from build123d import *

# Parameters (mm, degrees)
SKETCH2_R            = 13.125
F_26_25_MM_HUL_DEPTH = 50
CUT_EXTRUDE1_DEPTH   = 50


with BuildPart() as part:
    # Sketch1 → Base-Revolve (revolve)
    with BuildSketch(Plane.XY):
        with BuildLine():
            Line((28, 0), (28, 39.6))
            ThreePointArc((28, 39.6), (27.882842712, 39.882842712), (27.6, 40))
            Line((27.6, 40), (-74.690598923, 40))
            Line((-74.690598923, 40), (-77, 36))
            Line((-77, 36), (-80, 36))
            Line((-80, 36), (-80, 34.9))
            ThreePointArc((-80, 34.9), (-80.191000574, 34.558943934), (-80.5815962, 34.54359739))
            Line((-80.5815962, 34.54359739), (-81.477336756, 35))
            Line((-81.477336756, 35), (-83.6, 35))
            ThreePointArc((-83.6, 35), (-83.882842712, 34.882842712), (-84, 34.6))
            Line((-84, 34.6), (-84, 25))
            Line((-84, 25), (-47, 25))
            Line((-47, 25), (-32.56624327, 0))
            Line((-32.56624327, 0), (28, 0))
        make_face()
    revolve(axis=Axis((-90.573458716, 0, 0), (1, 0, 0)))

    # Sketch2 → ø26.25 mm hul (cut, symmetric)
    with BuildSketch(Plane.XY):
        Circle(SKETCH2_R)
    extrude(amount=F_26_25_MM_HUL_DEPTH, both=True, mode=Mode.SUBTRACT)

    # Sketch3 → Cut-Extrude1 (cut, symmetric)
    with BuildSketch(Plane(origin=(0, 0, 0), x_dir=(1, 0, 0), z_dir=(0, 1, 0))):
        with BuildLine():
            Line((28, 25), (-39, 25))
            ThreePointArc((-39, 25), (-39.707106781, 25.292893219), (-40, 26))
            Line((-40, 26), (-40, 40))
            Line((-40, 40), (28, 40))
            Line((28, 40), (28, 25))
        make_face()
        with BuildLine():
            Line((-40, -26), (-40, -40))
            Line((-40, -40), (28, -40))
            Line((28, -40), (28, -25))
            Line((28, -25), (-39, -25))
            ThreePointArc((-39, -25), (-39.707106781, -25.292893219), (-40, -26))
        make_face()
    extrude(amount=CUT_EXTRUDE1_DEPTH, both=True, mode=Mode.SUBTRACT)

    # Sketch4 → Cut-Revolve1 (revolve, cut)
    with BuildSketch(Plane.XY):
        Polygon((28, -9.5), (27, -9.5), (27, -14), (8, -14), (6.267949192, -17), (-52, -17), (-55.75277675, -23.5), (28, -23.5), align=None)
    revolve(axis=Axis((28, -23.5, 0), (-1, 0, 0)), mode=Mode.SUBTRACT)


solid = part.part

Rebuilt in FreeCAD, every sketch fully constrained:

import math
import FreeCAD as App
import Part
import Sketcher

V = App.Vector
Q = App.Units.Quantity


def add_polygon(sketch, points):
    """Adds a closed chain of lines whose ends are joined by coincident constraints."""
    first, n = sketch.GeometryCount, len(points)
    for a, b in zip(points, points[1:] + points[:1]):
        sketch.addGeometry(Part.LineSegment(App.Vector(*a, 0), App.Vector(*b, 0)), False)
    for i in range(n):
        sketch.addConstraint(Sketcher.Constraint("Coincident", first + i, 2, first + (i + 1) % n, 1))

doc = App.newDocument("Part")
body = doc.addObject("PartDesign::Body", "Body")

# Sketch on XY plane
sketch1 = body.newObject("Sketcher::SketchObject", "Sketch")
sketch1.AttachmentSupport = (doc.getObject("XY_Plane"), [""])
sketch1.MapMode = "FlatFace"
sketch1.addGeometry([
    Part.LineSegment(V(28, 0, 0), V(28, 39.6, 0)),  # 0
    Part.ArcOfCircle(Part.Circle(V(27.6, 39.6, 0), V(0, 0, 1), 0.4), math.radians(0), math.radians(90)),  # 1
    Part.LineSegment(V(27.6, 40, 0), V(-74.69, 40, 0)),  # 2
    Part.LineSegment(V(-74.69, 40, 0), V(-77, 36, 0)),  # 3
    Part.LineSegment(V(-77, 36, 0), V(-80, 36, 0)),  # 4
    Part.LineSegment(V(-80, 36, 0), V(-80, 34.9, 0)),  # 5
    Part.ArcOfCircle(Part.Circle(V(-80.4, 34.9, 0), V(0, 0, 1), 0.4), math.radians(-117), math.radians(0)),  # 6
    Part.LineSegment(V(-80.58, 34.54, 0), V(-81.48, 35, 0)),  # 7
    Part.LineSegment(V(-81.48, 35, 0), V(-83.6, 35, 0)),  # 8
    Part.ArcOfCircle(Part.Circle(V(-83.6, 34.6, 0), V(0, 0, 1), 0.4), math.radians(90), math.radians(180)),  # 9
    Part.LineSegment(V(-84, 34.6, 0), V(-84, 25, 0)),  # 10
    Part.LineSegment(V(-84, 25, 0), V(-47, 25, 0)),  # 11
    Part.LineSegment(V(-47, 25, 0), V(-32.57, 0, 0)),  # 12
    Part.LineSegment(V(-32.57, 0, 0), V(28, 0, 0)),  # 13
], False)
sketch1.addConstraint([
    Sketcher.Constraint("Tangent", 0, 2, 1, 1),
    Sketcher.Constraint("Tangent", 1, 2, 2, 1),
    Sketcher.Constraint("Coincident", 2, 2, 3, 1),
    Sketcher.Constraint("Coincident", 3, 2, 4, 1),
    Sketcher.Constraint("Coincident", 4, 2, 5, 1),
    Sketcher.Constraint("Tangent", 5, 2, 6, 2),
    Sketcher.Constraint("Tangent", 6, 1, 7, 1),
    Sketcher.Constraint("Coincident", 7, 2, 8, 1),
    Sketcher.Constraint("Tangent", 8, 2, 9, 1),
    Sketcher.Constraint("Tangent", 9, 2, 10, 1),
    Sketcher.Constraint("Coincident", 10, 2, 11, 1),
    Sketcher.Constraint("Coincident", 11, 2, 12, 1),
    Sketcher.Constraint("Coincident", 12, 2, 13, 1),
    Sketcher.Constraint("Coincident", 13, 2, 0, 1),
    Sketcher.Constraint("Vertical", 0),
    Sketcher.Constraint("Horizontal", 2),
    Sketcher.Constraint("Horizontal", 4),
    Sketcher.Constraint("Vertical", 5),
    Sketcher.Constraint("Horizontal", 8),
    Sketcher.Constraint("Vertical", 10),
    Sketcher.Constraint("Horizontal", 11),
    Sketcher.Constraint("Horizontal", 13),
    Sketcher.Constraint("Equal", 1, 6),
    Sketcher.Constraint("Equal", 6, 9),
    Sketcher.Constraint("PointOnObject", 12, 2, -1),
    Sketcher.Constraint("Radius", 1, Q("0.4 mm")),
    Sketcher.Constraint("DistanceX", 4, 2, 4, 1, Q("3 mm")),
    Sketcher.Constraint("DistanceX", 11, 1, 11, 2, Q("37 mm")),
    Sketcher.Constraint("Angle", 3, Q("-120 deg")),
    Sketcher.Constraint("Angle", 7, Q("153 deg")),
    Sketcher.Constraint("Angle", 12, Q("-60 deg")),
    Sketcher.Constraint("DistanceY", 0, 1, 0, 2, Q("39.6 mm")),
    Sketcher.Constraint("DistanceY", 5, 2, 5, 1, Q("1.1 mm")),
    Sketcher.Constraint("DistanceY", 10, 2, 10, 1, Q("9.6 mm")),
    Sketcher.Constraint("DistanceX", -1, 1, 0, 2, Q("28 mm")),
    Sketcher.Constraint("DistanceX", 3, 2, -1, 1, Q("77 mm")),
    Sketcher.Constraint("DistanceY", -1, 1, 3, 2, Q("36 mm")),
    Sketcher.Constraint("DistanceY", -1, 1, 7, 2, Q("35 mm")),
    Sketcher.Constraint("DistanceX", 9, 2, -1, 1, Q("84 mm")),
])
revolution = body.newObject("PartDesign::Revolution", "Revolution")
revolution.Profile = sketch1
revolution.ReferenceAxis = (sketch1, ["H_Axis"])
revolution.Angle = 360

# Sketch on XY plane
sketch2 = body.newObject("Sketcher::SketchObject", "Sketch001")
sketch2.AttachmentSupport = (doc.getObject("XY_Plane"), [""])
sketch2.MapMode = "FlatFace"
sketch2.addGeometry(Part.Circle(V(0, 0, 0), V(0, 0, 1), 13), False)
sketch2.addConstraint([
    Sketcher.Constraint("Coincident", 0, 3, -1, 1),
    Sketcher.Constraint("Diameter", 0, Q("26.25 mm")),
])
pocket1 = body.newObject("PartDesign::Pocket", "Pocket")
pocket1.Profile = sketch2
pocket1.Length = 100
pocket1.Midplane = True

# Sketch on XZ plane
sketch3 = body.newObject("Sketcher::SketchObject", "Sketch002")
sketch3.AttachmentSupport = (doc.getObject("XZ_Plane"), [""])
sketch3.MapMode = "FlatFace"
sketch3.addGeometry([
    Part.LineSegment(V(-39, -25, 0), V(28, -25, 0)),  # 0
    Part.LineSegment(V(28, -25, 0), V(28, -40, 0)),  # 1
    Part.LineSegment(V(28, -40, 0), V(-40, -40, 0)),  # 2
    Part.LineSegment(V(-40, -40, 0), V(-40, -26, 0)),  # 3
    Part.ArcOfCircle(Part.Circle(V(-39, -26, 0), V(0, 0, 1), 1), math.radians(90), math.radians(180)),  # 4
    Part.LineSegment(V(-40, 26, 0), V(-40, 40, 0)),  # 5
    Part.LineSegment(V(-40, 40, 0), V(28, 40, 0)),  # 6
    Part.LineSegment(V(28, 40, 0), V(28, 25, 0)),  # 7
    Part.LineSegment(V(28, 25, 0), V(-39, 25, 0)),  # 8
    Part.ArcOfCircle(Part.Circle(V(-39, 26, 0), V(0, 0, 1), 1), math.radians(-180), math.radians(-90)),  # 9
], False)
sketch3.addConstraint([
    Sketcher.Constraint("Coincident", 0, 2, 1, 1),
    Sketcher.Constraint("Coincident", 1, 2, 2, 1),
    Sketcher.Constraint("Coincident", 2, 2, 3, 1),
    Sketcher.Constraint("Tangent", 3, 2, 4, 2),
    Sketcher.Constraint("Tangent", 4, 1, 0, 1),
    Sketcher.Constraint("Coincident", 5, 2, 6, 1),
    Sketcher.Constraint("Coincident", 6, 2, 7, 1),
    Sketcher.Constraint("Coincident", 7, 2, 8, 1),
    Sketcher.Constraint("Tangent", 8, 2, 9, 2),
    Sketcher.Constraint("Tangent", 9, 1, 5, 1),
    Sketcher.Constraint("Horizontal", 0),
    Sketcher.Constraint("Vertical", 1),
    Sketcher.Constraint("Horizontal", 2),
    Sketcher.Constraint("Vertical", 3),
    Sketcher.Constraint("Vertical", 5),
    Sketcher.Constraint("Horizontal", 6),
    Sketcher.Constraint("Vertical", 7),
    Sketcher.Constraint("Horizontal", 8),
    Sketcher.Constraint("Equal", 4, 9),
    Sketcher.Constraint("Symmetric", 4, 3, 9, 3, -1),
    Sketcher.Constraint("Symmetric", 1, 2, 6, 2, -1),
    Sketcher.Constraint("Radius", 4, Q("1 mm")),
    Sketcher.Constraint("DistanceX", 0, 1, 0, 2, Q("67 mm")),
    Sketcher.Constraint("DistanceY", 1, 2, 1, 1, Q("15 mm")),
    Sketcher.Constraint("DistanceX", 4, 3, -1, 1, Q("39 mm")),
    Sketcher.Constraint("DistanceY", 4, 3, -1, 1, Q("26 mm")),
])
pocket2 = body.newObject("PartDesign::Pocket", "Pocket001")
pocket2.Profile = sketch3
pocket2.Length = 100
pocket2.Midplane = True

# Sketch on XY plane
sketch4 = body.newObject("Sketcher::SketchObject", "Sketch003")
sketch4.AttachmentSupport = (doc.getObject("XY_Plane"), [""])
sketch4.MapMode = "FlatFace"
add_polygon(sketch4, [(28, -9.5), (27, -9.5), (27, -14), (8, -14), (6.3, -17), (-52, -17), (-55.8, -23.5), (28, -23.5)])  # lines 0-7
sketch4.addGeometry(Part.LineSegment(V(28, -23.5, 0), V(-55.8, -23.5, 0)), True)  # axis
sketch4.addConstraint([
    Sketcher.Constraint("Horizontal", 0),
    Sketcher.Constraint("Vertical", 1),
    Sketcher.Constraint("Horizontal", 2),
    Sketcher.Constraint("Horizontal", 4),
    Sketcher.Constraint("Horizontal", 6),
    Sketcher.Constraint("Vertical", 7),
    Sketcher.Constraint("Horizontal", 8),
    Sketcher.Constraint("Coincident", 8, 1, 6, 2),
    Sketcher.Constraint("Parallel", 3, 5),
    Sketcher.Constraint("Equal", 6, 8),
    Sketcher.Constraint("DistanceX", 0, 2, 0, 1, Q("1 mm")),
    Sketcher.Constraint("DistanceX", 2, 2, 2, 1, Q("19 mm")),
    Sketcher.Constraint("DistanceY", 7, 1, 7, 2, Q("14 mm")),
    Sketcher.Constraint("Angle", 3, Q("-120 deg")),
    Sketcher.Constraint("DistanceY", 1, 2, 1, 1, Q("4.5 mm")),
    Sketcher.Constraint("DistanceX", -1, 1, 0, 2, Q("27 mm")),
    Sketcher.Constraint("DistanceY", 1, 2, -1, 1, Q("14 mm")),
    Sketcher.Constraint("DistanceY", 3, 2, -1, 1, Q("17 mm")),
    Sketcher.Constraint("DistanceX", 4, 2, -1, 1, Q("52 mm")),
])
groove = body.newObject("PartDesign::Groove", "Groove")
groove.Profile = sketch4
groove.ReferenceAxis = (sketch4, ["Axis0"])
groove.Angle = 360

doc.recompute()
